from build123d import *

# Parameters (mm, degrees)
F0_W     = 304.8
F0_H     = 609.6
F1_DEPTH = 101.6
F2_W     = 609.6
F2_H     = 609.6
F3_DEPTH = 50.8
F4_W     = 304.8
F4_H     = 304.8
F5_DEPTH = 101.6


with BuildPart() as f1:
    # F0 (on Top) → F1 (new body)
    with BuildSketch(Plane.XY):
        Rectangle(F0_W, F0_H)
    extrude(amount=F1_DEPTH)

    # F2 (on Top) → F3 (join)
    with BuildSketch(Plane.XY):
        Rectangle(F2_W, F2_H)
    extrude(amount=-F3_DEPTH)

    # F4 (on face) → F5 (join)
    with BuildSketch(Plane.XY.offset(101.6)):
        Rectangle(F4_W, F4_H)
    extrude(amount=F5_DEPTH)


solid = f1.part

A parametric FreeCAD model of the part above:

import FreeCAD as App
import Part
import Sketcher
Q = App.Units.Quantity


def add_polygon(sketch, points):
    """Adds a closed chain of lines whose ends are joined by coincident constraints."""
    first, n = sketch.GeometryCount, len(points)
    for a, b in zip(points, points[1:] + points[:1]):
        sketch.addGeometry(Part.LineSegment(App.Vector(*a, 0), App.Vector(*b, 0)), False)
    for i in range(n):
        sketch.addConstraint(Sketcher.Constraint("Coincident", first + i, 2, first + (i + 1) % n, 1))

doc = App.newDocument("Part")
body = doc.addObject("PartDesign::Body", "Body")

sketch1 = body.newObject("Sketcher::SketchObject", "Sketch")
sketch1.AttachmentSupport = (doc.getObject("XY_Plane"), [""])
sketch1.MapMode = "FlatFace"
add_polygon(sketch1, [(-152, 305), (-152, -305), (152, -305), (152, 305)])
sketch1.addConstraint([
    Sketcher.Constraint("Vertical", 0),
    Sketcher.Constraint("Horizontal", 1),
    Sketcher.Constraint("Vertical", 2),
    Sketcher.Constraint("Horizontal", 3),
    Sketcher.Constraint("Symmetric", 0, 2, 2, 2, -1, 1),
    Sketcher.Constraint("DistanceX", 1, 1, 1, 2, Q("12 in")),
    Sketcher.Constraint("DistanceY", 0, 2, 0, 1, Q("24 in")),
])
pad1 = body.newObject("PartDesign::Pad", "Pad")
pad1.Profile = sketch1
pad1.Length = Q("4 in")

sketch2 = body.newObject("Sketcher::SketchObject", "Sketch001")
sketch2.AttachmentSupport = (doc.getObject("XY_Plane"), [""])
sketch2.MapMode = "FlatFace"
add_polygon(sketch2, [(-305, 305), (-305, -305), (305, -305), (305, 305)])
sketch2.addConstraint([
    Sketcher.Constraint("Vertical", 0),
    Sketcher.Constraint("Horizontal", 1),
    Sketcher.Constraint("Vertical", 2),
    Sketcher.Constraint("Horizontal", 3),
    Sketcher.Constraint("Symmetric", 0, 2, 2, 2, -1, 1),
    Sketcher.Constraint("Equal", 3, 0),
    Sketcher.Constraint("DistanceX", 1, 1, 1, 2, Q("24 in")),
])
pad2 = body.newObject("PartDesign::Pad", "Pad001")
pad2.Profile = sketch2
pad2.Length = Q("2 in")
pad2.Reversed = True

sketch3 = body.newObject("Sketcher::SketchObject", "Sketch002")
sketch3.AttachmentSupport = (doc.getObject("XY_Plane"), [""])
sketch3.MapMode = "FlatFace"
sketch3.AttachmentOffset = App.Placement(App.Vector(0, 0, 4 * 25.4), App.Rotation())
add_polygon(sketch3, [(-152, 152), (-152, -152), (152, -152), (152, 152)])
sketch3.addConstraint([
    Sketcher.Constraint("Vertical", 0),
    Sketcher.Constraint("Horizontal", 1),
    Sketcher.Constraint("Vertical", 2),
    Sketcher.Constraint("Horizontal", 3),
    Sketcher.Constraint("Symmetric", 0, 2, 2, 2, -1, 1),
    Sketcher.Constraint("Equal", 3, 0),
    Sketcher.Constraint("DistanceX", 1, 1, 1, 2, Q("12 in")),
])
pad3 = body.newObject("PartDesign::Pad", "Pad002")
pad3.Profile = sketch3
pad3.Length = Q("4 in")

doc.recompute()
